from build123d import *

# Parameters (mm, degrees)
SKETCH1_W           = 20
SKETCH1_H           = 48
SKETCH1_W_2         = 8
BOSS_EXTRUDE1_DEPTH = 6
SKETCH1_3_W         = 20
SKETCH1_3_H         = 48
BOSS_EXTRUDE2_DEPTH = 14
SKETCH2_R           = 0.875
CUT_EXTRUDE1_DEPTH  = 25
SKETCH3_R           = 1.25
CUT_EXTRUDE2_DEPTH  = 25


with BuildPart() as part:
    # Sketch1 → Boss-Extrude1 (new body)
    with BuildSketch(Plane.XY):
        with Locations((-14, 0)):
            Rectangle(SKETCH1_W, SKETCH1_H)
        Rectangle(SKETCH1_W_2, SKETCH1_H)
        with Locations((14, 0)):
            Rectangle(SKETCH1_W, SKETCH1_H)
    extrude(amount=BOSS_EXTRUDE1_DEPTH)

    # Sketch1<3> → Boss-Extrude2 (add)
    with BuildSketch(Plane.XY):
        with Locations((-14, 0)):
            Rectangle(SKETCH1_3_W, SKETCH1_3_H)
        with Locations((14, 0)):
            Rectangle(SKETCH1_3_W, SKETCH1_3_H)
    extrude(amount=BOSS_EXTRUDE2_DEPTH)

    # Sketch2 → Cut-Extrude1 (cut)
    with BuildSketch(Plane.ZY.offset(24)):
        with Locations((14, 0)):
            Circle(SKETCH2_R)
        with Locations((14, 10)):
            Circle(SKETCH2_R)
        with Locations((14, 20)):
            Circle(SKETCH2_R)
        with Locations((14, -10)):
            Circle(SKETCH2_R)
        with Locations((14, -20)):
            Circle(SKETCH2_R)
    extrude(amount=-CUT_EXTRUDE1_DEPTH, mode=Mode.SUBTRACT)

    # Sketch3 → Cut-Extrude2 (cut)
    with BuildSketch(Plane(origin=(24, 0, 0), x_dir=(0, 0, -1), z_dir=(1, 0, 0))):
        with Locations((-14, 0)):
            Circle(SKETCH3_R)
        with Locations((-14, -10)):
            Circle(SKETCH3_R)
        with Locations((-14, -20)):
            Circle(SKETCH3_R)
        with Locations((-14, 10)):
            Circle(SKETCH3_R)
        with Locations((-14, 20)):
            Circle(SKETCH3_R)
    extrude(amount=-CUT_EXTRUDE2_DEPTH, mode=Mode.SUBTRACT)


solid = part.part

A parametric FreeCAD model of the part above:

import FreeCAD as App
import Part
import Sketcher

V = App.Vector
Q = App.Units.Quantity


def add_polygon(sketch, points):
    """Adds a closed chain of lines whose ends are joined by coincident constraints."""
    first, n = sketch.GeometryCount, len(points)
    for a, b in zip(points, points[1:] + points[:1]):
        sketch.addGeometry(Part.LineSegment(App.Vector(*a, 0), App.Vector(*b, 0)), False)
    for i in range(n):
        sketch.addConstraint(Sketcher.Constraint("Coincident", first + i, 2, first + (i + 1) % n, 1))

doc = App.newDocument("Part")
params = doc.addObject("Spreadsheet::Sheet", "Params")
for row, (alias, value) in enumerate([
    ("sketch1_width", "48 mm"),
    ("pad1_length", "6 mm"),
    ("sketch2_width", "20 mm"),
    ("sketch2_height", "48 mm"),
    ("pad2_length", "14 mm"),
    ("sketch3_diameter", "1.75 mm"),
    ("pocket1_length", "25 mm"),
    ("sketch4_diameter", "2.5 mm"),
    ("pocket2_length", "25 mm"),
], start=1):
    params.set(f"A{row}", alias)
    params.set(f"B{row}", "=" + value)
    params.setAlias(f"B{row}", alias)

body = doc.addObject("PartDesign::Body", "Body")

# Sketch on XY plane
sketch1 = body.newObject("Sketcher::SketchObject", "Sketch")
sketch1.AttachmentSupport = (doc.getObject("XY_Plane"), [""])
sketch1.MapMode = "FlatFace"
add_polygon(sketch1, [(-24, 24), (-24, -24), (24, -24), (24, 24)])  # lines 0-3
sketch1.addConstraint(Sketcher.Constraint("Vertical", 0))
sketch1.addConstraint(Sketcher.Constraint("Horizontal", 1))
sketch1.addConstraint(Sketcher.Constraint("Vertical", 2))
sketch1.addConstraint(Sketcher.Constraint("Horizontal", 3))
sketch1.addConstraint(Sketcher.Constraint("Symmetric", 0, 2, 2, 2, -1, 1))
sketch1.addConstraint(Sketcher.Constraint("Equal", 3, 0))
sketch1.addConstraint(Sketcher.Constraint("DistanceX", 1, 1, 1, 2, Q("48 mm")))
sketch1.setExpression("Constraints[10]", "Params.sketch1_width")
pad1 = body.newObject("PartDesign::Pad", "Pad")
pad1.Profile = sketch1
pad1.setExpression("Length", "Params.pad1_length")

# Sketch on XY plane
sketch2 = body.newObject("Sketcher::SketchObject", "Sketch001")
sketch2.AttachmentSupport = (doc.getObject("XY_Plane"), [""])
sketch2.MapMode = "FlatFace"
add_polygon(sketch2, [(-24, 24), (-24, -24), (-4, -24), (-4, 24)])  # lines 0-3
add_polygon(sketch2, [(4, 24), (4, -24), (24, -24), (24, 24)])  # lines 4-7
sketch2.addConstraint(Sketcher.Constraint("Vertical", 0))
sketch2.addConstraint(Sketcher.Constraint("Horizontal", 1))
sketch2.addConstraint(Sketcher.Constraint("Vertical", 2))
sketch2.addConstraint(Sketcher.Constraint("Horizontal", 3))
sketch2.addConstraint(Sketcher.Constraint("Vertical", 4))
sketch2.addConstraint(Sketcher.Constraint("Horizontal", 5))
sketch2.addConstraint(Sketcher.Constraint("Vertical", 6))
sketch2.addConstraint(Sketcher.Constraint("Horizontal", 7))
sketch2.addConstraint(Sketcher.Constraint("Symmetric", 2, 2, 4, 2, -1, 1))
sketch2.addConstraint(Sketcher.Constraint("Symmetric", 0, 2, 6, 2, -1, 1))
sketch2.addConstraint(Sketcher.Constraint("Horizontal", 1, 2, 4, 2))
sketch2.addConstraint(Sketcher.Constraint("DistanceX", 1, 1, 1, 2, Q("20 mm")))
sketch2.addConstraint(Sketcher.Constraint("DistanceY", 0, 2, 0, 1, Q("48 mm")))
sketch2.addConstraint(Sketcher.Constraint("DistanceX", 0, 2, -1, 1, Q("24 mm")))
sketch2.setExpression("Constraints[19]", "Params.sketch2_width")
sketch2.setExpression("Constraints[20]", "Params.sketch2_height")
pad2 = body.newObject("PartDesign::Pad", "Pad001")
pad2.Profile = sketch2
pad2.setExpression("Length", "Params.pad2_length")

# Sketch on YZ plane
sketch3 = body.newObject("Sketcher::SketchObject", "Sketch002")
sketch3.AttachmentSupport = (doc.getObject("YZ_Plane"), [""])
sketch3.MapMode = "FlatFace"
sketch3.AttachmentOffset = App.Placement(V(0, 0, -24), App.Rotation())
sketch3.addGeometry(Part.Circle(V(0, 14, 0), V(0, 0, 1), 0.9), False)
sketch3.addGeometry(Part.Circle(V(10, 14, 0), V(0, 0, 1), 0.9), False)
sketch3.addGeometry(Part.Circle(V(20, 14, 0), V(0, 0, 1), 0.9), False)
sketch3.addGeometry(Part.Circle(V(-10, 14, 0), V(0, 0, 1), 0.9), False)
sketch3.addGeometry(Part.Circle(V(-20, 14, 0), V(0, 0, 1), 0.9), False)
sketch3.addConstraint(Sketcher.Constraint("Equal", 0, 1))
sketch3.addConstraint(Sketcher.Constraint("Equal", 1, 2))
sketch3.addConstraint(Sketcher.Constraint("Equal", 2, 3))
sketch3.addConstraint(Sketcher.Constraint("Equal", 3, 4))
sketch3.addConstraint(Sketcher.Constraint("Symmetric", 1, 3, 3, 3, -2))
sketch3.addConstraint(Sketcher.Constraint("Symmetric", 2, 3, 4, 3, -2))
sketch3.addConstraint(Sketcher.Constraint("PointOnObject", 0, 3, -2))
sketch3.addConstraint(Sketcher.Constraint("Horizontal", 0, 3, 1, 3))
sketch3.addConstraint(Sketcher.Constraint("Horizontal", 1, 3, 2, 3))
sketch3.addConstraint(Sketcher.Constraint("Diameter", 0, Q("1.75 mm")))
sketch3.addConstraint(Sketcher.Constraint("DistanceY", -1, 1, 0, 3, Q("14 mm")))
sketch3.addConstraint(Sketcher.Constraint("DistanceX", -1, 1, 1, 3, Q("10 mm")))
sketch3.addConstraint(Sketcher.Constraint("DistanceX", -1, 1, 2, 3, Q("20 mm")))
sketch3.setExpression("Constraints[9]", "Params.sketch3_diameter")
pocket1 = body.newObject("PartDesign::Pocket", "Pocket")
pocket1.Profile = sketch3
pocket1.setExpression("Length", "Params.pocket1_length")
pocket1.Reversed = True

# Sketch on YZ plane
sketch4 = body.newObject("Sketcher::SketchObject", "Sketch003")
sketch4.AttachmentSupport = (doc.getObject("YZ_Plane"), [""])
sketch4.MapMode = "FlatFace"
sketch4.AttachmentOffset = App.Placement(V(0, 0, 24), App.Rotation())
sketch4.addGeometry(Part.Circle(V(0, 14, 0), V(0, 0, 1), 1.2), False)
sketch4.addGeometry(Part.Circle(V(-10, 14, 0), V(0, 0, 1), 1.2), False)
sketch4.addGeometry(Part.Circle(V(-20, 14, 0), V(0, 0, 1), 1.2), False)
sketch4.addGeometry(Part.Circle(V(10, 14, 0), V(0, 0, 1), 1.2), False)
sketch4.addGeometry(Part.Circle(V(20, 14, 0), V(0, 0, 1), 1.2), False)
sketch4.addConstraint(Sketcher.Constraint("Equal", 0, 1))
sketch4.addConstraint(Sketcher.Constraint("Equal", 1, 2))
sketch4.addConstraint(Sketcher.Constraint("Equal", 2, 3))
sketch4.addConstraint(Sketcher.Constraint("Equal", 3, 4))
sketch4.addConstraint(Sketcher.Constraint("Symmetric", 1, 3, 3, 3, -2))
sketch4.addConstraint(Sketcher.Constraint("Symmetric", 2, 3, 4, 3, -2))
sketch4.addConstraint(Sketcher.Constraint("PointOnObject", 0, 3, -2))
sketch4.addConstraint(Sketcher.Constraint("Horizontal", 0, 3, 1, 3))
sketch4.addConstraint(Sketcher.Constraint("Horizontal", 1, 3, 2, 3))
sketch4.addConstraint(Sketcher.Constraint("Diameter", 0, Q("2.5 mm")))
sketch4.addConstraint(Sketcher.Constraint("DistanceY", -1, 1, 0, 3, Q("14 mm")))
sketch4.addConstraint(Sketcher.Constraint("DistanceX", 1, 3, -1, 1, Q("10 mm")))
sketch4.addConstraint(Sketcher.Constraint("DistanceX", 2, 3, -1, 1, Q("20 mm")))
sketch4.setExpression("Constraints[9]", "Params.sketch4_diameter")
pocket2 = body.newObject("PartDesign::Pocket", "Pocket001")
pocket2.Profile = sketch4
pocket2.setExpression("Length", "Params.pocket2_length")

doc.recompute()
